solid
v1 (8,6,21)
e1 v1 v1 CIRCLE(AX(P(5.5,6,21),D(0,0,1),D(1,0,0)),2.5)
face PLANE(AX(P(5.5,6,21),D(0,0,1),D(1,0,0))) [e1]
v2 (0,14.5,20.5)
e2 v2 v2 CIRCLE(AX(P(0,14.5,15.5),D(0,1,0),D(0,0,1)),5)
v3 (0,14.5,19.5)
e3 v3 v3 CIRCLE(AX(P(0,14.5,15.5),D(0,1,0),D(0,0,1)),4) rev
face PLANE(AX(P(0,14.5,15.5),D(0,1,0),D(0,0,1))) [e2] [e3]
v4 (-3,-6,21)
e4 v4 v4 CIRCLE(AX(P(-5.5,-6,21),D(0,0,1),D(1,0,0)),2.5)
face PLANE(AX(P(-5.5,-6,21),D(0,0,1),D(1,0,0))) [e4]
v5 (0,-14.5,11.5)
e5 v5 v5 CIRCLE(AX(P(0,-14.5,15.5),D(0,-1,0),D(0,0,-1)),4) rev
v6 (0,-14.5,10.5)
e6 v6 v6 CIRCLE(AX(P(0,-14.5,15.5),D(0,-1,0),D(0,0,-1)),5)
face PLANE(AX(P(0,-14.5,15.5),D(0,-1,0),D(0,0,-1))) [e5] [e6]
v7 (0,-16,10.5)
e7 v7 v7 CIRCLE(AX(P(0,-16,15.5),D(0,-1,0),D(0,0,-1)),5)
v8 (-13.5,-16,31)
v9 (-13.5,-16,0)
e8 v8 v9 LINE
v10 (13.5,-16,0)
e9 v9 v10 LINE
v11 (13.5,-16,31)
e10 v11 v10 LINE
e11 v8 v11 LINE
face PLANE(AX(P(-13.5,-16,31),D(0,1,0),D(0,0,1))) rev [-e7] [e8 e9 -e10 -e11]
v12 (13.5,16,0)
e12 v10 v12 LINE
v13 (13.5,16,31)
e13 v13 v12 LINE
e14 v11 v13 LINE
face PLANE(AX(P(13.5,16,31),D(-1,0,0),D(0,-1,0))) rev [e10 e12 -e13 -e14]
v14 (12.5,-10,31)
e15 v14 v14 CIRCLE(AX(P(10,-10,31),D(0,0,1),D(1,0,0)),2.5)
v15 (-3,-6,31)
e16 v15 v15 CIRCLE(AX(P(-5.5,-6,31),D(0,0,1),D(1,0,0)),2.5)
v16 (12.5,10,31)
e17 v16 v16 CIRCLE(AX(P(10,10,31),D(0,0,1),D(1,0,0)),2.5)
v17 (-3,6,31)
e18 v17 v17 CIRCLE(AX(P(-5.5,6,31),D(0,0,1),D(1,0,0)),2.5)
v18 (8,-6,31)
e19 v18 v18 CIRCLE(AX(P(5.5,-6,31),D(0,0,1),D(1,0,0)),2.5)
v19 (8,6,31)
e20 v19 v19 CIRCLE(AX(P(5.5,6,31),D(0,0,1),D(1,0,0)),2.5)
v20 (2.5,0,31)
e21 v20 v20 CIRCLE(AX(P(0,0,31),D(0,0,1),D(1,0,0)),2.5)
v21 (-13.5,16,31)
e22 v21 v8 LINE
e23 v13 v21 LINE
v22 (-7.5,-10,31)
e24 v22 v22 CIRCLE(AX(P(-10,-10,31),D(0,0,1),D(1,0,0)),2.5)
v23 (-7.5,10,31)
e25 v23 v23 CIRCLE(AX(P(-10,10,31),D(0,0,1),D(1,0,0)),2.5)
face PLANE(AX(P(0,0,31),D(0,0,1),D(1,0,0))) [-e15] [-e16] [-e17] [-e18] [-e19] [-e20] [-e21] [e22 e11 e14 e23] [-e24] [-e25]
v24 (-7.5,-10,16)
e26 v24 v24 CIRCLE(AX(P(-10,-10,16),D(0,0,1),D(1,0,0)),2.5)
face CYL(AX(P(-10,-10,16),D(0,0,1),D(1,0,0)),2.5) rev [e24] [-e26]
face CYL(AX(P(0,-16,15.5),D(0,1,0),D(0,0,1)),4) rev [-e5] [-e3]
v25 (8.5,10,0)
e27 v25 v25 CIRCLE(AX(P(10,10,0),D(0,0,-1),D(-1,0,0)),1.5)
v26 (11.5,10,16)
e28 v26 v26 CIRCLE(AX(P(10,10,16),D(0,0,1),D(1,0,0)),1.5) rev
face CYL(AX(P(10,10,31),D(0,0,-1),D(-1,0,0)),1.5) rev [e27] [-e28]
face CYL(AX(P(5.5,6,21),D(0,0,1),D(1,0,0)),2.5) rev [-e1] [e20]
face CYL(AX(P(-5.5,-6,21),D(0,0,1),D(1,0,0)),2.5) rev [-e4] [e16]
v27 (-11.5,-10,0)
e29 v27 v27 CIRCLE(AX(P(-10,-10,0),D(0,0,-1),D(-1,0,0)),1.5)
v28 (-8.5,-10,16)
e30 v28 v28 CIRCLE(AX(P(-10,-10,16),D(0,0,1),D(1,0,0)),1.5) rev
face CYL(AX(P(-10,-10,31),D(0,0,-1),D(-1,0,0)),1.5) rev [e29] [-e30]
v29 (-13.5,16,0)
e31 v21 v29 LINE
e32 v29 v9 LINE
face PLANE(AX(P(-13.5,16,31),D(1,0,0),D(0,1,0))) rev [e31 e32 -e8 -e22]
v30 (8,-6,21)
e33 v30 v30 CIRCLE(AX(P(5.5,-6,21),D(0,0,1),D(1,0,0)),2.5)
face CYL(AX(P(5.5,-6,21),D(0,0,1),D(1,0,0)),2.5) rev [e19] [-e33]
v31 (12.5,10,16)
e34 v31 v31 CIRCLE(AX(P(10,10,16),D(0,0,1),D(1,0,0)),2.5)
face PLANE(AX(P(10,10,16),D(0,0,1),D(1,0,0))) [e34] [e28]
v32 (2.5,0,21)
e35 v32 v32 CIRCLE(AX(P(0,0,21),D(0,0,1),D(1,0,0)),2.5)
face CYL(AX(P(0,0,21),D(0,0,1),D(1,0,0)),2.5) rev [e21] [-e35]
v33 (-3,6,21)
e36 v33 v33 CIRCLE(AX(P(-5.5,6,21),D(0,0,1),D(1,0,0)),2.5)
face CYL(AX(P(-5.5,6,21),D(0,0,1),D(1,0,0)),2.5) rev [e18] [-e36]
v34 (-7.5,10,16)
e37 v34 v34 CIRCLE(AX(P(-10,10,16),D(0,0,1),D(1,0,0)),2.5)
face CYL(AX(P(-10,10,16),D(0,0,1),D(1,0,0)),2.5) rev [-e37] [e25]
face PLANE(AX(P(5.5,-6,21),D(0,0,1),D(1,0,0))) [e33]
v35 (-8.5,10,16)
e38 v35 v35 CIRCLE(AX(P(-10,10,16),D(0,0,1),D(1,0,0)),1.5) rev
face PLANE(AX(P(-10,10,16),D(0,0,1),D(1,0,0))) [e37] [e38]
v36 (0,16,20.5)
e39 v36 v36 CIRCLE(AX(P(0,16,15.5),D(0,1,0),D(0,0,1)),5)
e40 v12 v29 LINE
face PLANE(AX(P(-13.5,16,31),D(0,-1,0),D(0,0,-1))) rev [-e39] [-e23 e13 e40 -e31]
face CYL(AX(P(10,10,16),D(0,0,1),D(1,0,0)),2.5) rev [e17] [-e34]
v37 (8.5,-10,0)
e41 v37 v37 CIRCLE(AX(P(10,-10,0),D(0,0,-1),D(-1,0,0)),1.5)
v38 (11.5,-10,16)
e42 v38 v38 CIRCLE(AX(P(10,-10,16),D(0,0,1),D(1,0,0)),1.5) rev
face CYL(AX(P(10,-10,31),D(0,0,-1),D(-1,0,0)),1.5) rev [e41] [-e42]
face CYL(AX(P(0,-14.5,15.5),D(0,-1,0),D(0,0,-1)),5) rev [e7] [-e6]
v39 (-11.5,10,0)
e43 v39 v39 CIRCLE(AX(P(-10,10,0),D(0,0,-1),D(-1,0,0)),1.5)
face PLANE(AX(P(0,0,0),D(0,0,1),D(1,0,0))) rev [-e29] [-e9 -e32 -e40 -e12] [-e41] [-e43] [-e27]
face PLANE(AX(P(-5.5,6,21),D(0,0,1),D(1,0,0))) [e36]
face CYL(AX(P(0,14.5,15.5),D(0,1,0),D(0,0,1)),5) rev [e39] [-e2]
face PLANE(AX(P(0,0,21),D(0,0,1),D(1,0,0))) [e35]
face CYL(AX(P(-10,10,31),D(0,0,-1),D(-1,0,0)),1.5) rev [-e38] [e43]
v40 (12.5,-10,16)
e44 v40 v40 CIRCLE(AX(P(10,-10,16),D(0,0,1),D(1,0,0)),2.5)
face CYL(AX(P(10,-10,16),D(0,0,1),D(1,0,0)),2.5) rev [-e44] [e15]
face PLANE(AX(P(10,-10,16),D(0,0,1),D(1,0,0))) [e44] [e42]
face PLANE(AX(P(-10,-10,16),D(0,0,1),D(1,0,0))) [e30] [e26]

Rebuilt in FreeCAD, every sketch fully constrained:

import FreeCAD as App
import Part
import Sketcher

V = App.Vector
Q = App.Units.Quantity


def add_polygon(sketch, points):
    """Adds a closed chain of lines whose ends are joined by coincident constraints."""
    first, n = sketch.GeometryCount, len(points)
    for a, b in zip(points, points[1:] + points[:1]):
        sketch.addGeometry(Part.LineSegment(App.Vector(*a, 0), App.Vector(*b, 0)), False)
    for i in range(n):
        sketch.addConstraint(Sketcher.Constraint("Coincident", first + i, 2, first + (i + 1) % n, 1))

doc = App.newDocument("Part")
params = doc.addObject("Spreadsheet::Sheet", "Params")
for row, (alias, value) in enumerate([
    ("sketch1_width", "27 mm"),
    ("sketch1_height", "32 mm"),
    ("pad1_length", "31 mm"),
    ("sketch2_diameter", "3 mm"),
    ("sketch3_diameter", "8 mm"),
    ("sketch4_diameter", "10 mm"),
    ("pocket3_length", "1.5 mm"),
    ("sketch5_diameter", "10 mm"),
    ("pocket4_length", "1.5 mm"),
    ("sketch6_diameter", "5 mm"),
    ("pocket5_length", "15 mm"),
    ("sketch7_diameter", "5 mm"),
    ("pocket6_length", "10 mm"),
], start=1):
    params.set(f"A{row}", alias)
    params.set(f"B{row}", "=" + value)
    params.setAlias(f"B{row}", alias)

body = doc.addObject("PartDesign::Body", "Body")

# Sketch on XY plane
sketch1 = doc.addObject("Sketcher::SketchObject", "Sketch")
body.addObject(sketch1)
sketch1.AttachmentSupport = (doc.XY_Plane, [""])
sketch1.MapMode = "FlatFace"
add_polygon(sketch1, [(-13.5, 16), (-13.5, -16), (13.5, -16), (13.5, 16)])  # lines 0-3
sketch1.addConstraint([
    Sketcher.Constraint("Vertical", 0),
    Sketcher.Constraint("Horizontal", 1),
    Sketcher.Constraint("Vertical", 2),
    Sketcher.Constraint("Horizontal", 3),
    Sketcher.Constraint("Symmetric", 0, 2, 2, 2, -1, 1),
    Sketcher.Constraint("DistanceX", 1, 1, 1, 2, Q("27 mm")),
    Sketcher.Constraint("DistanceY", 0, 2, 0, 1, Q("32 mm")),
])
sketch1.setExpression("Constraints[9]", "Params.sketch1_width")
sketch1.setExpression("Constraints[10]", "Params.sketch1_height")
pad1 = doc.addObject("PartDesign::Pad", "Pad")
body.addObject(pad1)
pad1.Profile = sketch1
pad1.setExpression("Length", "Params.pad1_length")

# Sketch on XY plane
sketch2 = doc.addObject("Sketcher::SketchObject", "Sketch001")
body.addObject(sketch2)
sketch2.AttachmentSupport = (doc.XY_Plane, [""])
sketch2.MapMode = "FlatFace"
sketch2.addGeometry([
    Part.Circle(V(10, 10, 0), V(0, 0, 1), 1.5),
    Part.Circle(V(-10, 10, 0), V(0, 0, 1), 1.5),
    Part.Circle(V(-10, -10, 0), V(0, 0, 1), 1.5),
    Part.Circle(V(10, -10, 0), V(0, 0, 1), 1.5),
], False)
sketch2.addConstraint([
    Sketcher.Constraint("Equal", 0, 1),
    Sketcher.Constraint("Equal", 1, 2),
    Sketcher.Constraint("Equal", 2, 3),
    Sketcher.Constraint("Symmetric", 0, 3, 2, 3, -1, 1),
    Sketcher.Constraint("Symmetric", 1, 3, 3, 3, -1, 1),
    Sketcher.Constraint("Symmetric", 0, 3, 1, 3, -2),
    Sketcher.Constraint("Diameter", 0, Q("3 mm")),
    Sketcher.Constraint("DistanceX", -1, 1, 0, 3, Q("10 mm")),
    Sketcher.Constraint("DistanceY", -1, 1, 0, 3, Q("10 mm")),
])
sketch2.setExpression("Constraints[6]", "Params.sketch2_diameter")
pocket1 = doc.addObject("PartDesign::Pocket", "Pocket")
body.addObject(pocket1)
pocket1.Profile = sketch2
pocket1.Type = "ThroughAll"
pocket1.Reversed = True

# Sketch on XZ plane
sketch3 = doc.addObject("Sketcher::SketchObject", "Sketch002")
body.addObject(sketch3)
sketch3.AttachmentSupport = (doc.XZ_Plane, [""])
sketch3.MapMode = "FlatFace"
sketch3.AttachmentOffset = App.Placement(V(0, 0, -16), App.Rotation())
sketch3.addGeometry(Part.Circle(V(0, 15.5, 0), V(0, 0, 1), 4), False)
sketch3.addConstraint([
    Sketcher.Constraint("PointOnObject", 0, 3, -2),
    Sketcher.Constraint("Diameter", 0, Q("8 mm")),
    Sketcher.Constraint("DistanceY", -1, 1, 0, 3, Q("15.5 mm")),
])
sketch3.setExpression("Constraints[1]", "Params.sketch3_diameter")
pocket2 = doc.addObject("PartDesign::Pocket", "Pocket001")
body.addObject(pocket2)
pocket2.Profile = sketch3
pocket2.Type = "ThroughAll"
pocket2.Reversed = True

# Sketch on XZ plane
sketch4 = doc.addObject("Sketcher::SketchObject", "Sketch003")
body.addObject(sketch4)
sketch4.AttachmentSupport = (doc.XZ_Plane, [""])
sketch4.MapMode = "FlatFace"
sketch4.AttachmentOffset = App.Placement(V(0, 0, -16), App.Rotation())
sketch4.addGeometry(Part.Circle(V(0, 15.5, 0), V(0, 0, 1), 5), False)
sketch4.addConstraint([
    Sketcher.Constraint("PointOnObject", 0, 3, -2),
    Sketcher.Constraint("Diameter", 0, Q("10 mm")),
    Sketcher.Constraint("DistanceY", -1, 1, 0, 3, Q("15.5 mm")),
])
sketch4.setExpression("Constraints[1]", "Params.sketch4_diameter")
pocket3 = doc.addObject("PartDesign::Pocket", "Pocket002")
body.addObject(pocket3)
pocket3.Profile = sketch4
pocket3.setExpression("Length", "Params.pocket3_length")
pocket3.Reversed = True

# Sketch on XZ plane
sketch5 = doc.addObject("Sketcher::SketchObject", "Sketch004")
body.addObject(sketch5)
sketch5.AttachmentSupport = (doc.XZ_Plane, [""])
sketch5.MapMode = "FlatFace"
sketch5.AttachmentOffset = App.Placement(V(0, 0, 16), App.Rotation())
sketch5.addGeometry(Part.Circle(V(0, 15.5, 0), V(0, 0, 1), 5), False)
sketch5.addConstraint([
    Sketcher.Constraint("PointOnObject", 0, 3, -2),
    Sketcher.Constraint("Diameter", 0, Q("10 mm")),
    Sketcher.Constraint("DistanceY", -1, 1, 0, 3, Q("15.5 mm")),
])
sketch5.setExpression("Constraints[1]", "Params.sketch5_diameter")
pocket4 = doc.addObject("PartDesign::Pocket", "Pocket003")
body.addObject(pocket4)
pocket4.Profile = sketch5
pocket4.setExpression("Length", "Params.pocket4_length")

# Sketch on XY plane
sketch6 = doc.addObject("Sketcher::SketchObject", "Sketch005")
body.addObject(sketch6)
sketch6.AttachmentSupport = (doc.XY_Plane, [""])
sketch6.MapMode = "FlatFace"
sketch6.AttachmentOffset = App.Placement(V(0, 0, 31), App.Rotation())
sketch6.addGeometry([
    Part.Circle(V(-10, 10, 0), V(0, 0, 1), 2.5),
    Part.Circle(V(10, 10, 0), V(0, 0, 1), 2.5),
    Part.Circle(V(10, -10, 0), V(0, 0, 1), 2.5),
    Part.Circle(V(-10, -10, 0), V(0, 0, 1), 2.5),
], False)
sketch6.addConstraint([
    Sketcher.Constraint("Equal", 0, 1),
    Sketcher.Constraint("Equal", 1, 2),
    Sketcher.Constraint("Equal", 2, 3),
    Sketcher.Constraint("Symmetric", 0, 3, 2, 3, -1, 1),
    Sketcher.Constraint("Symmetric", 1, 3, 3, 3, -1, 1),
    Sketcher.Constraint("Symmetric", 0, 3, 1, 3, -2),
    Sketcher.Constraint("Diameter", 0, Q("5 mm")),
    Sketcher.Constraint("DistanceX", 0, 3, -1, 1, Q("10 mm")),
    Sketcher.Constraint("DistanceY", -1, 1, 0, 3, Q("10 mm")),
])
sketch6.setExpression("Constraints[6]", "Params.sketch6_diameter")
pocket5 = doc.addObject("PartDesign::Pocket", "Pocket004")
body.addObject(pocket5)
pocket5.Profile = sketch6
pocket5.setExpression("Length", "Params.pocket5_length")

# Sketch on XY plane
sketch7 = doc.addObject("Sketcher::SketchObject", "Sketch006")
body.addObject(sketch7)
sketch7.AttachmentSupport = (doc.XY_Plane, [""])
sketch7.MapMode = "FlatFace"
sketch7.AttachmentOffset = App.Placement(V(0, 0, 31), App.Rotation())
sketch7.addGeometry([
    Part.Circle(V(-5.5, 6, 0), V(0, 0, 1), 2.5),  # 0
    Part.Circle(V(5.5, 6, 0), V(0, 0, 1), 2.5),  # 1
    Part.Circle(V(0, 0, 0), V(0, 0, 1), 2.5),  # 2
    Part.Circle(V(5.5, -6, 0), V(0, 0, 1), 2.5),  # 3
    Part.Circle(V(-5.5, -6, 0), V(0, 0, 1), 2.5),  # 4
], False)
sketch7.addConstraint([
    Sketcher.Constraint("Coincident", 2, 3, -1, 1),
    Sketcher.Constraint("Equal", 0, 1),
    Sketcher.Constraint("Equal", 1, 2),
    Sketcher.Constraint("Equal", 2, 3),
    Sketcher.Constraint("Equal", 3, 4),
    Sketcher.Constraint("Symmetric", 0, 3, 3, 3, -1, 1),
    Sketcher.Constraint("Symmetric", 1, 3, 4, 3, -1, 1),
    Sketcher.Constraint("Symmetric", 0, 3, 1, 3, -2),
    Sketcher.Constraint("Diameter", 0, Q("5 mm")),
    Sketcher.Constraint("DistanceY", -1, 1, 0, 3, Q("6 mm")),
    Sketcher.Constraint("DistanceX", 0, 3, 1, 3, Q("11 mm")),
])
sketch7.setExpression("Constraints[8]", "Params.sketch7_diameter")
pocket6 = doc.addObject("PartDesign::Pocket", "Pocket005")
body.addObject(pocket6)
pocket6.Profile = sketch7
pocket6.setExpression("Length", "Params.pocket6_length")

doc.recompute()
